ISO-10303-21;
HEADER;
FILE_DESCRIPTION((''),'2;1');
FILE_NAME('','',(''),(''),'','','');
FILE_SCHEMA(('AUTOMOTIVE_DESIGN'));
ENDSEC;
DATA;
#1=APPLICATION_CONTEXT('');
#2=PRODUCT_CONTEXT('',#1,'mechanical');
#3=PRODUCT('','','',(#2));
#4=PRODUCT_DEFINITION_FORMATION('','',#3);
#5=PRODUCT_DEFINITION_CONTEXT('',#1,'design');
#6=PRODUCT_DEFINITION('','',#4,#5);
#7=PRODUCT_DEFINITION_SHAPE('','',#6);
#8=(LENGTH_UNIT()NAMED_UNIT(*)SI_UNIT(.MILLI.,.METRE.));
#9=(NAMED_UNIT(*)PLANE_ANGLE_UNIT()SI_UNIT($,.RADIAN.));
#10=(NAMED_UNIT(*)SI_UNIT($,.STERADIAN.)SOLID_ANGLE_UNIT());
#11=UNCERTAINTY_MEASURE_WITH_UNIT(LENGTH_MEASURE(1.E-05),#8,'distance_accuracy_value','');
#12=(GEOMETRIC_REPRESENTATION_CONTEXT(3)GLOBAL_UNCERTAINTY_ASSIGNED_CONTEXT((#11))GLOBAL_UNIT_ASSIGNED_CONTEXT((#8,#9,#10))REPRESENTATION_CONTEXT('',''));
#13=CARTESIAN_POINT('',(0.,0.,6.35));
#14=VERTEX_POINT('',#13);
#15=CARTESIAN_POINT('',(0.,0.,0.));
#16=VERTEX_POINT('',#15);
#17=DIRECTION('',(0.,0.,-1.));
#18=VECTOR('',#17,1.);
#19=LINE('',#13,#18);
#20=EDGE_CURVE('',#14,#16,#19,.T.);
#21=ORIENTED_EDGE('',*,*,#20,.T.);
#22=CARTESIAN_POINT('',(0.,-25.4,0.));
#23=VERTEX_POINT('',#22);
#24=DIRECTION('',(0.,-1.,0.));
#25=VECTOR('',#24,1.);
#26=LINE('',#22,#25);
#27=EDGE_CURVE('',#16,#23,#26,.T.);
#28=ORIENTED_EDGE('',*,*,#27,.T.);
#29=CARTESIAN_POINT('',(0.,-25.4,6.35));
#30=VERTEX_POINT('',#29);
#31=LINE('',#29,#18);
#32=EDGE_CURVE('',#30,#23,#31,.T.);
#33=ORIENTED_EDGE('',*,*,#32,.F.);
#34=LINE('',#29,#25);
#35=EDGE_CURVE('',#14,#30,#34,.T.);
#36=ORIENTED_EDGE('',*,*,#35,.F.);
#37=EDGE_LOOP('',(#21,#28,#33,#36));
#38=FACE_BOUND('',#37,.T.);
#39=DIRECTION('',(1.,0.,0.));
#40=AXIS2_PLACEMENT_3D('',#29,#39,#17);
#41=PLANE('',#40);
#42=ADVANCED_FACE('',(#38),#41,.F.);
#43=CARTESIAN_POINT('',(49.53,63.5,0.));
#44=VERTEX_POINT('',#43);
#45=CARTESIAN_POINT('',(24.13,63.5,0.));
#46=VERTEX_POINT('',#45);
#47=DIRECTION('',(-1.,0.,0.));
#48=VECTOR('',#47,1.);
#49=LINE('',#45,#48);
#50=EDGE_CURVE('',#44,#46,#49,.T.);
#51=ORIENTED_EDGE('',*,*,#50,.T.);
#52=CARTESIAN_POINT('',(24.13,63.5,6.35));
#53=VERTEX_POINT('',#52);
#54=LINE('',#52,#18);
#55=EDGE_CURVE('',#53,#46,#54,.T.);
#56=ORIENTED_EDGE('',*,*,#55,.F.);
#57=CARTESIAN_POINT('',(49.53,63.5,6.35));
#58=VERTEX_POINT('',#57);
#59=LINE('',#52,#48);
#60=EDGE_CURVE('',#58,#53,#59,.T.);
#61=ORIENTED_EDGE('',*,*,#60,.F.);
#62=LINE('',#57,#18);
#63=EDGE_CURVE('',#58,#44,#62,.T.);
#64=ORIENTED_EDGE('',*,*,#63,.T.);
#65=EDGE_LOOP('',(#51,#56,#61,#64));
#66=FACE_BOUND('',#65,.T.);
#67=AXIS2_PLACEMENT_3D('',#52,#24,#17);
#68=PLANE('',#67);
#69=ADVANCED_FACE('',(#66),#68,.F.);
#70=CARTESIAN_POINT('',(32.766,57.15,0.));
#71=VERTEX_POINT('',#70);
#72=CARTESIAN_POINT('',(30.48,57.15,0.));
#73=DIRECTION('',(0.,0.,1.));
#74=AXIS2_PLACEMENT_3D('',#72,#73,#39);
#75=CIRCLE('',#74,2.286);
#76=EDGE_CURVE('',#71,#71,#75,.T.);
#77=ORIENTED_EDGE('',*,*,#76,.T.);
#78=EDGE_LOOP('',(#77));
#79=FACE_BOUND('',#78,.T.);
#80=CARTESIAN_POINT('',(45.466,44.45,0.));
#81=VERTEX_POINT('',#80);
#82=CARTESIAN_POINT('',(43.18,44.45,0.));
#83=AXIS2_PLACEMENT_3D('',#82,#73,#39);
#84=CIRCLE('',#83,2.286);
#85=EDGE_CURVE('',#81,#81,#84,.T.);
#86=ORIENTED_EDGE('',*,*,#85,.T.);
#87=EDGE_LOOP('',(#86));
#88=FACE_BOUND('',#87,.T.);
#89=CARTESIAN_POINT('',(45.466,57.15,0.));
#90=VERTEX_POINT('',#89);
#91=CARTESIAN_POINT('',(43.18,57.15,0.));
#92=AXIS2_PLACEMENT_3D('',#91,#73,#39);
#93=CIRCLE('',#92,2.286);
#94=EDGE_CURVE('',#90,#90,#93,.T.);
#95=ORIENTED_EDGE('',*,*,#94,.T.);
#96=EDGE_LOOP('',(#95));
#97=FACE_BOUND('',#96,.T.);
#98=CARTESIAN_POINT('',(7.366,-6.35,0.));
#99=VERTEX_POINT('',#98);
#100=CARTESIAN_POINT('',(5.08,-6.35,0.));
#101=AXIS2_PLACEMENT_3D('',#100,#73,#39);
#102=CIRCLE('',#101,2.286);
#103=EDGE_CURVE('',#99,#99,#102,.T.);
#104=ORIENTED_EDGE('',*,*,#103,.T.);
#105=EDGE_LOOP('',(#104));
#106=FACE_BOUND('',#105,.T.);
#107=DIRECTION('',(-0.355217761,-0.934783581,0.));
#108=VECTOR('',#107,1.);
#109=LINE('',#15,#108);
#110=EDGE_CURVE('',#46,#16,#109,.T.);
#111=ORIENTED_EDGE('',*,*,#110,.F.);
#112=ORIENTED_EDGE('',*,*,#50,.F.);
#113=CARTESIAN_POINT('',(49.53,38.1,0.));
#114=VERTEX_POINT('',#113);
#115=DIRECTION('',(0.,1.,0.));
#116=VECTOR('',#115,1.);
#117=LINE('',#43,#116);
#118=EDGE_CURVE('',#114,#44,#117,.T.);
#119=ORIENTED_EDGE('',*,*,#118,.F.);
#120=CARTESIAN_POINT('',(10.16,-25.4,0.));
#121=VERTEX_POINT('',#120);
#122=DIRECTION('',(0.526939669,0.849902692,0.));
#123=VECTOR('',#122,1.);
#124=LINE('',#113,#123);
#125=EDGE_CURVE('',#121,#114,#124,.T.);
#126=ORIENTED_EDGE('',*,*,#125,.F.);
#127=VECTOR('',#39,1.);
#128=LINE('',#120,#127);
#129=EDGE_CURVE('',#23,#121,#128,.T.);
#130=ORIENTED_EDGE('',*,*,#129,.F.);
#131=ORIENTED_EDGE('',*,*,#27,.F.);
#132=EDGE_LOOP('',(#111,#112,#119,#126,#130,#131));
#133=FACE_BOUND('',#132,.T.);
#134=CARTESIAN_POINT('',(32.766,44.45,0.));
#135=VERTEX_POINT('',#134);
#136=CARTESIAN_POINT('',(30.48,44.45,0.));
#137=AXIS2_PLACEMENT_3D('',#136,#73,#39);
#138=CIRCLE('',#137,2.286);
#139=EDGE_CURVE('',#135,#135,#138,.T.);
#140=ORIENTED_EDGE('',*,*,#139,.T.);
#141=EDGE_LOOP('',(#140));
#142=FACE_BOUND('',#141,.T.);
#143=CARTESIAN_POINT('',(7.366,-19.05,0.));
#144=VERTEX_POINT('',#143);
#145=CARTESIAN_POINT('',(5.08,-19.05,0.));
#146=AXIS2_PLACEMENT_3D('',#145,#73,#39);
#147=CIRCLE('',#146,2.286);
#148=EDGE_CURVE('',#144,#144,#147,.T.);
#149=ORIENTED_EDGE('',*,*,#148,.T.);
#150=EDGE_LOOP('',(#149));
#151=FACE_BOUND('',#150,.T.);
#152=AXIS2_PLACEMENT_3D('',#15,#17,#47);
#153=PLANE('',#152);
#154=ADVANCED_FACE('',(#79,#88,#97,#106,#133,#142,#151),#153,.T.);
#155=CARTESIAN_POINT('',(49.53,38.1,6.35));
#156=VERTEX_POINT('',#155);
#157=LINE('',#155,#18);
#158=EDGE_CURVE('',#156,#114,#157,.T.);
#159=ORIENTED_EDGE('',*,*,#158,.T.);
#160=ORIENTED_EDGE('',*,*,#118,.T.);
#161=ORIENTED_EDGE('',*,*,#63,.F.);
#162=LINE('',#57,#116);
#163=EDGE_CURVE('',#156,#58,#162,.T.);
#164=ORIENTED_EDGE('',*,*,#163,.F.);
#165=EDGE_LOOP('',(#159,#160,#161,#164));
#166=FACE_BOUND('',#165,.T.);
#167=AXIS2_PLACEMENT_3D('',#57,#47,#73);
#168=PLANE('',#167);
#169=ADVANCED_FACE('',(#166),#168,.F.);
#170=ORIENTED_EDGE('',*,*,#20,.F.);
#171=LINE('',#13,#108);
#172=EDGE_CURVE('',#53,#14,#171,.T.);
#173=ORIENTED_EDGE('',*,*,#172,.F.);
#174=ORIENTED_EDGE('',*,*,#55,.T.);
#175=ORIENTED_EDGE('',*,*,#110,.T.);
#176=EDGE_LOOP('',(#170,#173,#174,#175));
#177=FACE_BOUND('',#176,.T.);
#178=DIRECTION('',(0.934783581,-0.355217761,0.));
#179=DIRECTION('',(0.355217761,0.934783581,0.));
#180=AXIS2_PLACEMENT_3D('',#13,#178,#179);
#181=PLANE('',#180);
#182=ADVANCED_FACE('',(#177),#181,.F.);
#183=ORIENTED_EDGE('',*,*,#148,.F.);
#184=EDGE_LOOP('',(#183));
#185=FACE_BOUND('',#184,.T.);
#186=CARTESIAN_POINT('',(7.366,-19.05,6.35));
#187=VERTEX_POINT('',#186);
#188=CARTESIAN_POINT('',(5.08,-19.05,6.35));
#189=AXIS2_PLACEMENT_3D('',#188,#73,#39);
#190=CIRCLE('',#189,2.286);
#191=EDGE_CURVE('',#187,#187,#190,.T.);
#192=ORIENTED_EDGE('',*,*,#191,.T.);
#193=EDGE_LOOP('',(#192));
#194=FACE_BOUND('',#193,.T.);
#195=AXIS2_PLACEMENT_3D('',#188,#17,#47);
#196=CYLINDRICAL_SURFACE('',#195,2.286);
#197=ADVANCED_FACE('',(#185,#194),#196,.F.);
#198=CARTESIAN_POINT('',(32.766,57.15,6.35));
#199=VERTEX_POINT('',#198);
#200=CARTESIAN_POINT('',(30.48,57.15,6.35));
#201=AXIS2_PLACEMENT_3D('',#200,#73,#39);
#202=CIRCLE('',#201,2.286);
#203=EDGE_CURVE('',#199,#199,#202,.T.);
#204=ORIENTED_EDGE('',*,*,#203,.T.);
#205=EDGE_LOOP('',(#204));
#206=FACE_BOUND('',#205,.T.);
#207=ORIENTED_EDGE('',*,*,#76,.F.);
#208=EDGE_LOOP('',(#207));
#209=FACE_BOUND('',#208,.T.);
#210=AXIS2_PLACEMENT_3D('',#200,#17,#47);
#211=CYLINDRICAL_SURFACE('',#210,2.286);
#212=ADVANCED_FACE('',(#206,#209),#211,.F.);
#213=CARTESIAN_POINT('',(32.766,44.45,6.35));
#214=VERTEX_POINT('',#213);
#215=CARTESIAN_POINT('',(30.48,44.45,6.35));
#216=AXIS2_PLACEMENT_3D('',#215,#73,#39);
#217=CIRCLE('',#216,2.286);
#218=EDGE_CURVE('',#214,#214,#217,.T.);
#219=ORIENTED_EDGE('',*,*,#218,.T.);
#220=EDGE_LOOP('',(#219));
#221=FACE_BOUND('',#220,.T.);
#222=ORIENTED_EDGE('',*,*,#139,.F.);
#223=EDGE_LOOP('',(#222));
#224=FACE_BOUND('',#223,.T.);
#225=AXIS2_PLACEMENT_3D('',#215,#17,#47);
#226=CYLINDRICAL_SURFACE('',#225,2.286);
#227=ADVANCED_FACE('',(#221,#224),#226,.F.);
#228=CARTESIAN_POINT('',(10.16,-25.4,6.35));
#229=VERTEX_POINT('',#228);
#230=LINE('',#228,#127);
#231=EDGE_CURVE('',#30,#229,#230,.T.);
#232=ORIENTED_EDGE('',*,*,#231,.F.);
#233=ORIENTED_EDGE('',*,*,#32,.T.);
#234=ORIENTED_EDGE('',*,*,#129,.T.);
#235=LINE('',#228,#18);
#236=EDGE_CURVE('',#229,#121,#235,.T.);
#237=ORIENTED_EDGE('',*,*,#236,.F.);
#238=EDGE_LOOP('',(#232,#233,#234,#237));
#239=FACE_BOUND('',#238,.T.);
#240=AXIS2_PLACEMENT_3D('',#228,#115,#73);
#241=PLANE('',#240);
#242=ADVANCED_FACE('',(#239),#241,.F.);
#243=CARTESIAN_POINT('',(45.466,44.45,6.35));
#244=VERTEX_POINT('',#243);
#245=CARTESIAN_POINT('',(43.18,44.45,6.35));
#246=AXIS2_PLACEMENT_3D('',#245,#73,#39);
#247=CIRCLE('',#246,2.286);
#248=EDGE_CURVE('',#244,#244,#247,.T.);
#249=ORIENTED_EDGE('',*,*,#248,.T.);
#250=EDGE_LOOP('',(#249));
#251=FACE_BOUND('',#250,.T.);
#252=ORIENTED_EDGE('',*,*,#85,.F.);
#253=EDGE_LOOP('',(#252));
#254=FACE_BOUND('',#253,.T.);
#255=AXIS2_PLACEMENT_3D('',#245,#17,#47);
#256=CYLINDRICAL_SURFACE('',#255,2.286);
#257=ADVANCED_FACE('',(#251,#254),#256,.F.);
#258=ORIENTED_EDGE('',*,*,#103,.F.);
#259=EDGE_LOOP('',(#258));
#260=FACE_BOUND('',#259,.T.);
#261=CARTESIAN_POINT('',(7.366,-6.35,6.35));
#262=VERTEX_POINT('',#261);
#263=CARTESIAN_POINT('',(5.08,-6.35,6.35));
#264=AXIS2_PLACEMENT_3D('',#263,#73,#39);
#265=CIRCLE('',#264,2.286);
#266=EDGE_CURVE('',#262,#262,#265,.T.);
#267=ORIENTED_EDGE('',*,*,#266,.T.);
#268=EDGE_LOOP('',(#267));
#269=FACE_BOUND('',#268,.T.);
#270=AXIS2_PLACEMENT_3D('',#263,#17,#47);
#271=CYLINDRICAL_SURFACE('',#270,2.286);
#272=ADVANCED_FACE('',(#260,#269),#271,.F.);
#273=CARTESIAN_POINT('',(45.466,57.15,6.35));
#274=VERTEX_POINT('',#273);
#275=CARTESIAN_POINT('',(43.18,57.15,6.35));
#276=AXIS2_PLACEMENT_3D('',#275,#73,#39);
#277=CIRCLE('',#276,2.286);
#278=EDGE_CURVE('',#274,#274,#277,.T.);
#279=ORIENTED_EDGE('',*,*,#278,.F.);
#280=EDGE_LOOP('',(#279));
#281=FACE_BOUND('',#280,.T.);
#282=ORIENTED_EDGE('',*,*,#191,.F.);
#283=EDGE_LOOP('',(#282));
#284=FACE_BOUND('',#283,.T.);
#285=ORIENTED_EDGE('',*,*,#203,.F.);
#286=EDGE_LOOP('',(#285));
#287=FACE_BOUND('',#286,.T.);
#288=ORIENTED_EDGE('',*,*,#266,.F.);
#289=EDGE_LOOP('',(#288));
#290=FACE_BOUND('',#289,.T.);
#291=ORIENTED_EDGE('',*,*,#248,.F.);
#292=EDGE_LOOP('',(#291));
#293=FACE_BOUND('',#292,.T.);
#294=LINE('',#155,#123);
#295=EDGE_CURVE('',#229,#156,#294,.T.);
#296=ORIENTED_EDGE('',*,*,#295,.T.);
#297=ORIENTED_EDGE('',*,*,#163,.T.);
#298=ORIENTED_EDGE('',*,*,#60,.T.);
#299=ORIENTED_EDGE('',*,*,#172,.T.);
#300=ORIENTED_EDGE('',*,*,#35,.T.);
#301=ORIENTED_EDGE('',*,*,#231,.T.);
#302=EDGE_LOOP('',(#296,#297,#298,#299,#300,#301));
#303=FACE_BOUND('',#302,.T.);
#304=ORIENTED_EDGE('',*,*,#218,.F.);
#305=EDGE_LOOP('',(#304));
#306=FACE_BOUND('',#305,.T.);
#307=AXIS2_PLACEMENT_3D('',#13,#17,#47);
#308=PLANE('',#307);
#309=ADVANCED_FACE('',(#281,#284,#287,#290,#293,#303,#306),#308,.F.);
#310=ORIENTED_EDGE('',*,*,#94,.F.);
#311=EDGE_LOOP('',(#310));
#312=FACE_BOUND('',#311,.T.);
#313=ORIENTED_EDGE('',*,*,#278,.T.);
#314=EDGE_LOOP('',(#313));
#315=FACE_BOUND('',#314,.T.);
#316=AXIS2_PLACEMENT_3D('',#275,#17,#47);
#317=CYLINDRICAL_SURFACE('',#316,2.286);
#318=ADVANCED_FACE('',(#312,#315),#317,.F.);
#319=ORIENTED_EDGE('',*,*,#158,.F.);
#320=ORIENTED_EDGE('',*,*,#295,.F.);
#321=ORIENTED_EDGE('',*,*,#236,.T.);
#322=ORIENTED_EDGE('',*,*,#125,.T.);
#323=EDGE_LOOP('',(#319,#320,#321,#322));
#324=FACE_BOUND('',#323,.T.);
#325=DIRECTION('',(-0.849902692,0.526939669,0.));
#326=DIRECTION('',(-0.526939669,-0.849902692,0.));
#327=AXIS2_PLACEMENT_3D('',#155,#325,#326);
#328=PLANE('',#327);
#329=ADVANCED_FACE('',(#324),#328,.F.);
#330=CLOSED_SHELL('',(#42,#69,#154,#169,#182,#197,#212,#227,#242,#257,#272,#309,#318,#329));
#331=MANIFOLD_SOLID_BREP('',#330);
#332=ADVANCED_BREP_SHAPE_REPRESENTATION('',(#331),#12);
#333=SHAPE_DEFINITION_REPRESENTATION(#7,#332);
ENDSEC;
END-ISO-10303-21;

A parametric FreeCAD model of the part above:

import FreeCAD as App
import Part
import Sketcher
from FreeCAD import Vector
Q = App.Units.Quantity


def add_polygon(sketch, points):
    """Adds a closed chain of lines whose ends are joined by coincident constraints."""
    first, n = sketch.GeometryCount, len(points)
    for a, b in zip(points, points[1:] + points[:1]):
        sketch.addGeometry(Part.LineSegment(App.Vector(*a, 0), App.Vector(*b, 0)), False)
    for i in range(n):
        sketch.addConstraint(Sketcher.Constraint("Coincident", first + i, 2, first + (i + 1) % n, 1))

doc = App.newDocument("Part")
body = doc.addObject("PartDesign::Body", "Body")

sketch1 = body.newObject("Sketcher::SketchObject", "Sketch")
sketch1.AttachmentSupport = (doc.getObject("XY_Plane"), [""])
sketch1.MapMode = "FlatFace"
add_polygon(sketch1, [(24.1, 63.5), (0, 0), (0, -25.4), (10.2, -25.4), (49.5, 38.1), (49.5, 63.5)])
sketch1.addGeometry(Part.Circle(Vector(5.1, -19.1, 0), Vector(0, 0, 1), 2.3), False)
sketch1.addGeometry(Part.Circle(Vector(5.1, -6.3, 0), Vector(0, 0, 1), 2.3), False)
sketch1.addGeometry(Part.Circle(Vector(43.2, 44.5, 0), Vector(0, 0, 1), 2.3), False)
sketch1.addGeometry(Part.Circle(Vector(43.2, 57.1, 0), Vector(0, 0, 1), 2.3), False)
sketch1.addGeometry(Part.Circle(Vector(30.5, 44.5, 0), Vector(0, 0, 1), 2.3), False)
sketch1.addGeometry(Part.Circle(Vector(30.5, 57.1, 0), Vector(0, 0, 1), 2.3), False)
sketch1.addConstraint([
    Sketcher.Constraint("Vertical", 1),
    Sketcher.Constraint("Horizontal", 2),
    Sketcher.Constraint("Vertical", 4),
    Sketcher.Constraint("Horizontal", 5),
    Sketcher.Constraint("Coincident", 0, 2, -1, 1),
    Sketcher.Constraint("Equal", 6, 7),
    Sketcher.Constraint("Equal", 7, 8),
    Sketcher.Constraint("Equal", 8, 9),
    Sketcher.Constraint("Equal", 9, 10),
    Sketcher.Constraint("Equal", 10, 11),
    Sketcher.Constraint("Horizontal", 8, 3, 10, 3),
    Sketcher.Constraint("Horizontal", 9, 3, 11, 3),
    Sketcher.Constraint("Vertical", 6, 3, 7, 3),
    Sketcher.Constraint("Vertical", 8, 3, 9, 3),
    Sketcher.Constraint("Vertical", 10, 3, 11, 3),
    Sketcher.Constraint("Equal", 5, 1),
    Sketcher.Constraint("Equal", 1, 4),
    Sketcher.Constraint("Diameter", 6, Q("0.18 in")),
    Sketcher.Constraint("DistanceX", 5, 2, 5, 1, Q("1 in")),
    Sketcher.Constraint("DistanceX", 2, 1, 2, 2, Q("0.4 in")),
    Sketcher.Constraint("DistanceY", 7, 3, 8, 3, Q("2 in")),
    Sketcher.Constraint("DistanceY", 6, 3, 9, 3, Q("3 in")),
    Sketcher.Constraint("DistanceX", 7, 3, 10, 3, Q("1 in")),
    Sketcher.Constraint("DistanceX", -1, 1, 6, 3, Q("0.2 in")),
    Sketcher.Constraint("DistanceX", -1, 1, 8, 3, Q("1.7 in")),
    Sketcher.Constraint("DistanceY", -1, 1, 3, 2, Q("1.5 in")),
    Sketcher.Constraint("DistanceY", 6, 3, 7, 3, Q("0.5 in")),
    Sketcher.Constraint("DistanceY", 6, 3, -1, 1, Q("0.75 in")),
    Sketcher.Constraint("DistanceX", -1, 1, 3, 2, Q("1.95 in")),
])
pad1 = body.newObject("PartDesign::Pad", "Pad")
pad1.Profile = sketch1
pad1.Length = Q("0.25 in")

doc.recompute()
